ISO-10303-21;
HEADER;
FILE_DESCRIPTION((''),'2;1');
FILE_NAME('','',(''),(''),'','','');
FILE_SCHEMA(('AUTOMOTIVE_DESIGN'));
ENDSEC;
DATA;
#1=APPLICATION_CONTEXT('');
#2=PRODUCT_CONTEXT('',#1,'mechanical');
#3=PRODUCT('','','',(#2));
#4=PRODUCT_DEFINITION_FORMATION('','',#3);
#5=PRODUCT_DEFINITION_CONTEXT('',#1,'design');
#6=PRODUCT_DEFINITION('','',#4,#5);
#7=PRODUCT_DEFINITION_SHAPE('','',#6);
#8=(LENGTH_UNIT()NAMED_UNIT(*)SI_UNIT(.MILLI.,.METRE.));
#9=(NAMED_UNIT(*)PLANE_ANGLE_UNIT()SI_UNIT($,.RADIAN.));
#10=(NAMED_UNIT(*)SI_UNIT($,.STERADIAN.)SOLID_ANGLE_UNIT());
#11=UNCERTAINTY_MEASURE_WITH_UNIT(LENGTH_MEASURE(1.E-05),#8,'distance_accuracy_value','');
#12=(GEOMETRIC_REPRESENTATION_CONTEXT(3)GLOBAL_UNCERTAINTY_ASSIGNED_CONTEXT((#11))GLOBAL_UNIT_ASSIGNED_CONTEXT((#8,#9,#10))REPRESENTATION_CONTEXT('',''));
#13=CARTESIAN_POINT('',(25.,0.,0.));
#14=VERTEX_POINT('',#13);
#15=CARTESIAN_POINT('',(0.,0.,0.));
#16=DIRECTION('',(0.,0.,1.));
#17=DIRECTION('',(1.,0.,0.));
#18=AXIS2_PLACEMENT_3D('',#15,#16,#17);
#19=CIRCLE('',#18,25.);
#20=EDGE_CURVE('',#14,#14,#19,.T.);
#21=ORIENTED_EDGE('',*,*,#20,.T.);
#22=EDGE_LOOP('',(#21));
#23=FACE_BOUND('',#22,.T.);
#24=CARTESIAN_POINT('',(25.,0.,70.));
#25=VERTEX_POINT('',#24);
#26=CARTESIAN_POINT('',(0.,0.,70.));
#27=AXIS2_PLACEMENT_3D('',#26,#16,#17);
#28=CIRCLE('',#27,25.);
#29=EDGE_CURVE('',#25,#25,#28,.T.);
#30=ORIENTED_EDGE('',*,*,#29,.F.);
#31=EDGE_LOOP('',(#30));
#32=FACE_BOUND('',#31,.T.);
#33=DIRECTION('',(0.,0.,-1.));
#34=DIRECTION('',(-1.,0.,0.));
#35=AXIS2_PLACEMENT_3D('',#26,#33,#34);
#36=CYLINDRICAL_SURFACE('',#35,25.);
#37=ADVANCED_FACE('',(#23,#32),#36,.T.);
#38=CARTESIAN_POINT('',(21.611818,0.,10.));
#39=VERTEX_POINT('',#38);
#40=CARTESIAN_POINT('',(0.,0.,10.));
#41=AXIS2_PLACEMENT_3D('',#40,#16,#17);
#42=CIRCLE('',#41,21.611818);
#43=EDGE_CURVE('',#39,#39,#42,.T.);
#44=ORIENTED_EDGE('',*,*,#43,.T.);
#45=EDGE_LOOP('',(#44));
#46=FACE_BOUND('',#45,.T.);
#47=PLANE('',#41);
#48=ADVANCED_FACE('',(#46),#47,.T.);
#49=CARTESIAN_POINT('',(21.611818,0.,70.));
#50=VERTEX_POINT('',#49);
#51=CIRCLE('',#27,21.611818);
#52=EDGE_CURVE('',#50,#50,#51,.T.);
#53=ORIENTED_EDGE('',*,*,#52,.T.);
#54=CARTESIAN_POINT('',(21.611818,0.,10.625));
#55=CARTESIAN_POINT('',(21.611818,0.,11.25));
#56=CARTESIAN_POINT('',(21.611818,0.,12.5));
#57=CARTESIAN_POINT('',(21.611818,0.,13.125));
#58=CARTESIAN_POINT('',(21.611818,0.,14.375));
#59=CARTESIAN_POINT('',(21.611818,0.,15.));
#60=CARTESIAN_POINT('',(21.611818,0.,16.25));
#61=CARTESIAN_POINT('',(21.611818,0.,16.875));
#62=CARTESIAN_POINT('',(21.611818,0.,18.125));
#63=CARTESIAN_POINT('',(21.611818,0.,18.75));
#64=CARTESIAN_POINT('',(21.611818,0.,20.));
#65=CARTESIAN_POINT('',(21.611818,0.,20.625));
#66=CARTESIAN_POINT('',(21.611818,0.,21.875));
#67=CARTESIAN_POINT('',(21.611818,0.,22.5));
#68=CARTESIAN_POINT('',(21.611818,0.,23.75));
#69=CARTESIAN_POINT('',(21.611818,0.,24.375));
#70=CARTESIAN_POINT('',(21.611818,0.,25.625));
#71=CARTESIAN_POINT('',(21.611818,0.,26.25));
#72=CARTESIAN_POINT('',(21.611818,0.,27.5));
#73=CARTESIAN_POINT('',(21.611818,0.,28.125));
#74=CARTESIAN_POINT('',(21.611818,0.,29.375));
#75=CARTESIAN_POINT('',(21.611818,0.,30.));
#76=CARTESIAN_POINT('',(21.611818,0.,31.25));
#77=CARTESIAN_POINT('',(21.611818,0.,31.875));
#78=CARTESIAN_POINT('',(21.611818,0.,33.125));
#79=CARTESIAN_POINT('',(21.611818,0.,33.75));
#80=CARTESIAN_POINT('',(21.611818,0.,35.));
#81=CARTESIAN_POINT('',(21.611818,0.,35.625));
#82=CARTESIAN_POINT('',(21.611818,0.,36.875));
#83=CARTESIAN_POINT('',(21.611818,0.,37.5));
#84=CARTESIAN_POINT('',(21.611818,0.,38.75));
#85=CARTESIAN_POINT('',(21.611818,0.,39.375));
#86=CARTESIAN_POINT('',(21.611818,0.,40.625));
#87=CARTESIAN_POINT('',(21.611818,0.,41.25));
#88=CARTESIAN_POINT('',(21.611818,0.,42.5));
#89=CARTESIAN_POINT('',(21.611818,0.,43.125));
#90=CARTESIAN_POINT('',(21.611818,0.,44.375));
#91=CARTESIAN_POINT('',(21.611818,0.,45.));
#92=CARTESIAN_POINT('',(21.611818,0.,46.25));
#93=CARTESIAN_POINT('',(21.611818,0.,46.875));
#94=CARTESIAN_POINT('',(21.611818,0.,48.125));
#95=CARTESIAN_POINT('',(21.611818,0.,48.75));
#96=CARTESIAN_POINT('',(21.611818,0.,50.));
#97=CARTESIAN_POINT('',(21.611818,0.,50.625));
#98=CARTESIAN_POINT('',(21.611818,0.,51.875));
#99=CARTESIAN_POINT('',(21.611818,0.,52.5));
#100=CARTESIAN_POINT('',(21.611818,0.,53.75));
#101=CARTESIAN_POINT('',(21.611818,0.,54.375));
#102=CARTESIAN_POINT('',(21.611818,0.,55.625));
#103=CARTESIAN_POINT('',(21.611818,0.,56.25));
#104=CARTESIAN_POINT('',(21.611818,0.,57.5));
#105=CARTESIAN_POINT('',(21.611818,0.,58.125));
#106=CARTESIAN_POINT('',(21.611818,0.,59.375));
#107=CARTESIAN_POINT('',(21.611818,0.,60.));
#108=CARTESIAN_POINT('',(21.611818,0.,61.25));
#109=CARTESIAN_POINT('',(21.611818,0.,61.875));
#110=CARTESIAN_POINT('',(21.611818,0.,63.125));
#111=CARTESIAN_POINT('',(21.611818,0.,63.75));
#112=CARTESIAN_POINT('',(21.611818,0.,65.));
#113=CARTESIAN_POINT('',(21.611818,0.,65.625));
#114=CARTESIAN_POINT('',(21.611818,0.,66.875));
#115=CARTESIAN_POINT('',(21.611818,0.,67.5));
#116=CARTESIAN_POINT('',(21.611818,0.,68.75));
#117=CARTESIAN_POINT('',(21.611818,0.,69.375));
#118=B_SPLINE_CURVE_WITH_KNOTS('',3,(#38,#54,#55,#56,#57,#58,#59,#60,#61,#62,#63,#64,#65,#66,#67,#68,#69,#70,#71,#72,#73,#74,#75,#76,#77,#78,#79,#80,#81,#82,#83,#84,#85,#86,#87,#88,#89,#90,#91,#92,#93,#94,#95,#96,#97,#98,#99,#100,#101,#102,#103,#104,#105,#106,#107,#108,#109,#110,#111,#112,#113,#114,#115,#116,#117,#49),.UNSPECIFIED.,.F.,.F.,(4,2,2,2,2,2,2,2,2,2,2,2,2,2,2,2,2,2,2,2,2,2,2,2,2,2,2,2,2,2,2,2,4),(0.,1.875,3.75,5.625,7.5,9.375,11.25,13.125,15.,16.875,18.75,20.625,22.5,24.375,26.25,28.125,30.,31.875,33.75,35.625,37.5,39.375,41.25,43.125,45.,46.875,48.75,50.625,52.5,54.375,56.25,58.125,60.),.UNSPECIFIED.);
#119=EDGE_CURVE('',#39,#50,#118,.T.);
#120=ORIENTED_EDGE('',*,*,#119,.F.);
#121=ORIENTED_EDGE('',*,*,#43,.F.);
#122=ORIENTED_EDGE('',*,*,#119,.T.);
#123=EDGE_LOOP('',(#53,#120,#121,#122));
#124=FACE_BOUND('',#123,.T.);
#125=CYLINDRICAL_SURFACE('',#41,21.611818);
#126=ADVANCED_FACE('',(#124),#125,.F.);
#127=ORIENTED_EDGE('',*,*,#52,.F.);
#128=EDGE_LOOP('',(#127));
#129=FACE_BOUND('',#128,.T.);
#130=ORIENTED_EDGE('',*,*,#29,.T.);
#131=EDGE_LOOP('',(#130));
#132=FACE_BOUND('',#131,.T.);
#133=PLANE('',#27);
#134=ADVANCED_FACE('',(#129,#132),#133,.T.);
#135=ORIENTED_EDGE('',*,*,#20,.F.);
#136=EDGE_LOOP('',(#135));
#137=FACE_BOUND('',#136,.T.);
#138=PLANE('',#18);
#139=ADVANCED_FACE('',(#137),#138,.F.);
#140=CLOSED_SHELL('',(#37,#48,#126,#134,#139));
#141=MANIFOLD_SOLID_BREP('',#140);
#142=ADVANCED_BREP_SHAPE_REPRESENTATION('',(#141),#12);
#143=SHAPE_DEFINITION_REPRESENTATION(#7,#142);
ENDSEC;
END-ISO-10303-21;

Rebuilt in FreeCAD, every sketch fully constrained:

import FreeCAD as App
import Part
import Sketcher

V = App.Vector

doc = App.newDocument("Part")
body = doc.addObject("PartDesign::Body", "Body")

# Sketch on XY plane
sketch1 = body.newObject("Sketcher::SketchObject", "Sketch")
sketch1.AttachmentSupport = (doc.getObject("XY_Plane"), [""])
sketch1.MapMode = "FlatFace"
sketch1.addGeometry(Part.Circle(V(0, 0, 0), V(0, 0, 1), 25), False)
sketch1.addConstraint([
    Sketcher.Constraint("Coincident", 0, 3, -1, 1),
    Sketcher.Constraint("Diameter", 0, 50.0),
])
pad1 = body.newObject("PartDesign::Pad", "Pad")
pad1.Profile = sketch1
pad1.Length = 70

# Sketch on XY plane
sketch2 = body.newObject("Sketcher::SketchObject", "Sketch001")
sketch2.AttachmentSupport = (doc.getObject("XY_Plane"), [""])
sketch2.MapMode = "FlatFace"
sketch2.AttachmentOffset = App.Placement(V(0, 0, 70), App.Rotation())
sketch2.addGeometry(Part.Circle(V(0, 0, 0), V(0, 0, 1), 22), False)
sketch2.addConstraint([
    Sketcher.Constraint("Coincident", 0, 3, -1, 1),
    Sketcher.Constraint("Diameter", 0, 43.223636),
])
pocket1 = body.newObject("PartDesign::Pocket", "Pocket")
pocket1.Profile = sketch2
pocket1.Length = 60

doc.recompute()
